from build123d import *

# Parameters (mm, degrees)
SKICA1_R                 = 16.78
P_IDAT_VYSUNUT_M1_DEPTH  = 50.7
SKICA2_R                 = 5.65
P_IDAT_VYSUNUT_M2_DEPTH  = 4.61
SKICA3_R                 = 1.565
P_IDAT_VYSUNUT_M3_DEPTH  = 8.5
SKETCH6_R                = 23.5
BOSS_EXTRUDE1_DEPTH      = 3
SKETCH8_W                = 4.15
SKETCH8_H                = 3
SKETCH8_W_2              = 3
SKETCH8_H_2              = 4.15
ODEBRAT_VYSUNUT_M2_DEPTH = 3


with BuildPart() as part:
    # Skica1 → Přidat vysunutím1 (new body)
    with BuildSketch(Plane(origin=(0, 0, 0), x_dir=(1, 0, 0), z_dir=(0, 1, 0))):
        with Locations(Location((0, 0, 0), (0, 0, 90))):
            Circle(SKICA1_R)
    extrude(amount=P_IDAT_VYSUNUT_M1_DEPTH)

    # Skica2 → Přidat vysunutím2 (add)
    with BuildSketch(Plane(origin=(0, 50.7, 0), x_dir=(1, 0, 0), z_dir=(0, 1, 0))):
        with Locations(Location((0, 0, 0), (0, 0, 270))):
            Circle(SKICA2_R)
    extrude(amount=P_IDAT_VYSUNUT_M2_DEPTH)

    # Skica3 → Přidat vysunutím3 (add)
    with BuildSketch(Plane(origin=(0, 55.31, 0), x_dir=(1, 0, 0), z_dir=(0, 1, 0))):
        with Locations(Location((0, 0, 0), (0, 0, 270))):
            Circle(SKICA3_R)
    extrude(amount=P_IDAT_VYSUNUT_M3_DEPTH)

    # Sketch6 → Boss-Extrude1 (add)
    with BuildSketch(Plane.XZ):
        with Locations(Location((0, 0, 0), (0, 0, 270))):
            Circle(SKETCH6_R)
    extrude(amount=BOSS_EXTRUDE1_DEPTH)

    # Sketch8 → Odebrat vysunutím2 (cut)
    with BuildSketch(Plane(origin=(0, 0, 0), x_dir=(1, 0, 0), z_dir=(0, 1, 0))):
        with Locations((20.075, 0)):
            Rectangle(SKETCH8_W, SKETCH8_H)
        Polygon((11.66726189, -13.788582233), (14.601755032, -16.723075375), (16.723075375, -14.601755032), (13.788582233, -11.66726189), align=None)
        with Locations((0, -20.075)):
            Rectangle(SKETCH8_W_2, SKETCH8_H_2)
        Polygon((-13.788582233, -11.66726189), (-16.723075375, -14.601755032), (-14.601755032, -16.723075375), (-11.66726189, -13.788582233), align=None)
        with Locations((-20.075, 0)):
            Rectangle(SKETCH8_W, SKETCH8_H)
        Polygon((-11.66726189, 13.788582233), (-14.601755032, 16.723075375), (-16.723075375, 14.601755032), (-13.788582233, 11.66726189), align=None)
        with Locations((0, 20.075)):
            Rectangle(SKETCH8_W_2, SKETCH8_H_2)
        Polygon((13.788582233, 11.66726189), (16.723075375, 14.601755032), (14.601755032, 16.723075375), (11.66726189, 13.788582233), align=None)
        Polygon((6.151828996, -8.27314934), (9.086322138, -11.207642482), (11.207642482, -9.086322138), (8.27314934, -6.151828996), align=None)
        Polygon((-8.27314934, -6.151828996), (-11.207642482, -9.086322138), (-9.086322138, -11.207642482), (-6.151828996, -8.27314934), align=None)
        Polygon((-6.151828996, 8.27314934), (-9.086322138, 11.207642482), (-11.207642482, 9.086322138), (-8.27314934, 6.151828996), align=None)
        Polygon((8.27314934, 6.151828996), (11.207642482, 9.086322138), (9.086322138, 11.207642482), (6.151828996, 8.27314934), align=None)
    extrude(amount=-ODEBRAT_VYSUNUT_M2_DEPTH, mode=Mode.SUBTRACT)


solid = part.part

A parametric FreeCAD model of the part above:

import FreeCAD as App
import Part
import Sketcher

V = App.Vector
Q = App.Units.Quantity


def add_polygon(sketch, points):
    """Adds a closed chain of lines whose ends are joined by coincident constraints."""
    first, n = sketch.GeometryCount, len(points)
    for a, b in zip(points, points[1:] + points[:1]):
        sketch.addGeometry(Part.LineSegment(App.Vector(*a, 0), App.Vector(*b, 0)), False)
    for i in range(n):
        sketch.addConstraint(Sketcher.Constraint("Coincident", first + i, 2, first + (i + 1) % n, 1))

doc = App.newDocument("Part")
body = doc.addObject("PartDesign::Body", "Body")

# Sketch on XZ plane
sketch1 = body.newObject("Sketcher::SketchObject", "Sketch")
sketch1.AttachmentSupport = (doc.getObject("XZ_Plane"), [""])
sketch1.MapMode = "FlatFace"
sketch1.addGeometry(Part.Circle(V(0, 0, 0), V(0, 0, 1), 17), False)
sketch1.addConstraint([
    Sketcher.Constraint("Coincident", 0, 3, -1, 1),
    Sketcher.Constraint("Diameter", 0, Q("33.56 mm")),
])
pad1 = body.newObject("PartDesign::Pad", "Pad")
pad1.Profile = sketch1
pad1.Length = 50.7
pad1.Reversed = True

# Sketch on XZ plane
sketch2 = body.newObject("Sketcher::SketchObject", "Sketch001")
sketch2.AttachmentSupport = (doc.getObject("XZ_Plane"), [""])
sketch2.MapMode = "FlatFace"
sketch2.AttachmentOffset = App.Placement(V(0, 0, -50.7), App.Rotation())
sketch2.addGeometry(Part.Circle(V(0, 0, 0), V(0, 0, 1), 6), False)
sketch2.addConstraint([
    Sketcher.Constraint("Coincident", 0, 3, -1, 1),
    Sketcher.Constraint("Diameter", 0, Q("11.3 mm")),
])
pad2 = body.newObject("PartDesign::Pad", "Pad001")
pad2.Profile = sketch2
pad2.Length = 4.61
pad2.Reversed = True

# Sketch on XZ plane
sketch3 = body.newObject("Sketcher::SketchObject", "Sketch002")
sketch3.AttachmentSupport = (doc.getObject("XZ_Plane"), [""])
sketch3.MapMode = "FlatFace"
sketch3.AttachmentOffset = App.Placement(V(0, 0, -55.31), App.Rotation())
sketch3.addGeometry(Part.Circle(V(0, 0, 0), V(0, 0, 1), 1.6), False)
sketch3.addConstraint([
    Sketcher.Constraint("Coincident", 0, 3, -1, 1),
    Sketcher.Constraint("Diameter", 0, Q("3.13 mm")),
])
pad3 = body.newObject("PartDesign::Pad", "Pad002")
pad3.Profile = sketch3
pad3.Length = 8.5
pad3.Reversed = True

# Sketch on XZ plane
sketch4 = body.newObject("Sketcher::SketchObject", "Sketch003")
sketch4.AttachmentSupport = (doc.getObject("XZ_Plane"), [""])
sketch4.MapMode = "FlatFace"
sketch4.addGeometry(Part.Circle(V(0, 0, 0), V(0, 0, 1), 24), False)
sketch4.addConstraint([
    Sketcher.Constraint("Coincident", 0, 3, -1, 1),
    Sketcher.Constraint("Diameter", 0, Q("47 mm")),
])
pad4 = body.newObject("PartDesign::Pad", "Pad003")
pad4.Profile = sketch4
pad4.Length = 3

# Sketch on XZ plane
sketch5 = body.newObject("Sketcher::SketchObject", "Sketch004")
sketch5.AttachmentSupport = (doc.getObject("XZ_Plane"), [""])
sketch5.MapMode = "FlatFace"
add_polygon(sketch5, [(18, -1.5), (18, 1.5), (22.1, 1.5), (22.1, -1.5)])  # lines 0-3
add_polygon(sketch5, [(11.7, 13.8), (14.6, 16.7), (16.7, 14.6), (13.8, 11.7)])  # lines 4-7
add_polygon(sketch5, [(-1.5, 18), (-1.5, 22.1), (1.5, 22.1), (1.5, 18)])  # lines 8-11
add_polygon(sketch5, [(-13.8, 11.7), (-16.7, 14.6), (-14.6, 16.7), (-11.7, 13.8)])  # lines 12-15
add_polygon(sketch5, [(-22.1, -1.5), (-22.1, 1.5), (-18, 1.5), (-18, -1.5)])  # lines 16-19
add_polygon(sketch5, [(-11.7, -13.8), (-14.6, -16.7), (-16.7, -14.6), (-13.8, -11.7)])  # lines 20-23
add_polygon(sketch5, [(-1.5, -22.1), (-1.5, -18), (1.5, -18), (1.5, -22.1)])  # lines 24-27
add_polygon(sketch5, [(13.8, -11.7), (16.7, -14.6), (14.6, -16.7), (11.7, -13.8)])  # lines 28-31
add_polygon(sketch5, [(6.2, 8.3), (9.1, 11.2), (11.2, 9.1), (8.3, 6.2)])  # lines 32-35
add_polygon(sketch5, [(-8.3, 6.2), (-11.2, 9.1), (-9.1, 11.2), (-6.2, 8.3)])  # lines 36-39
add_polygon(sketch5, [(-6.2, -8.3), (-9.1, -11.2), (-11.2, -9.1), (-8.3, -6.2)])  # lines 40-43
add_polygon(sketch5, [(8.3, -6.2), (11.2, -9.1), (9.1, -11.2), (6.2, -8.3)])  # lines 44-47
sketch5.addConstraint([
    Sketcher.Constraint("Vertical", 0),
    Sketcher.Constraint("Horizontal", 1),
    Sketcher.Constraint("Vertical", 2),
    Sketcher.Constraint("Horizontal", 3),
    Sketcher.Constraint("Vertical", 8),
    Sketcher.Constraint("Horizontal", 9),
    Sketcher.Constraint("Vertical", 10),
    Sketcher.Constraint("Horizontal", 11),
    Sketcher.Constraint("Vertical", 16),
    Sketcher.Constraint("Horizontal", 17),
    Sketcher.Constraint("Vertical", 18),
    Sketcher.Constraint("Horizontal", 19),
    Sketcher.Constraint("Vertical", 24),
    Sketcher.Constraint("Horizontal", 25),
    Sketcher.Constraint("Vertical", 26),
    Sketcher.Constraint("Horizontal", 27),
    Sketcher.Constraint("Symmetric", 2, 2, 16, 2, -1, 1),
    Sketcher.Constraint("Symmetric", 0, 2, 18, 2, -1, 1),
    Sketcher.Constraint("Symmetric", 4, 2, 20, 2, -1, 1),
    Sketcher.Constraint("Symmetric", 5, 2, 21, 2, -1, 1),
    Sketcher.Constraint("Symmetric", 6, 2, 22, 2, -1, 1),
    Sketcher.Constraint("Symmetric", 7, 2, 23, 2, -1, 1),
    Sketcher.Constraint("Symmetric", 10, 2, 24, 2, -1, 1),
    Sketcher.Constraint("Symmetric", 8, 2, 26, 2, -1, 1),
    Sketcher.Constraint("Symmetric", 12, 2, 28, 2, -1, 1),
    Sketcher.Constraint("Symmetric", 13, 2, 29, 2, -1, 1),
    Sketcher.Constraint("Symmetric", 14, 2, 30, 2, -1, 1),
    Sketcher.Constraint("Symmetric", 15, 2, 31, 2, -1, 1),
    Sketcher.Constraint("Symmetric", 32, 2, 40, 2, -1, 1),
    Sketcher.Constraint("Symmetric", 33, 2, 41, 2, -1, 1),
    Sketcher.Constraint("Symmetric", 34, 2, 42, 2, -1, 1),
    Sketcher.Constraint("Symmetric", 35, 2, 43, 2, -1, 1),
    Sketcher.Constraint("Symmetric", 36, 2, 44, 2, -1, 1),
    Sketcher.Constraint("Symmetric", 37, 2, 45, 2, -1, 1),
    Sketcher.Constraint("Symmetric", 38, 2, 46, 2, -1, 1),
    Sketcher.Constraint("Symmetric", 39, 2, 47, 2, -1, 1),
    Sketcher.Constraint("Symmetric", 5, 2, 12, 2, -2),
    Sketcher.Constraint("Symmetric", 4, 2, 13, 2, -2),
    Sketcher.Constraint("Symmetric", 7, 2, 14, 2, -2),
    Sketcher.Constraint("Symmetric", 6, 2, 15, 2, -2),
    Sketcher.Constraint("Symmetric", 33, 2, 36, 2, -2),
    Sketcher.Constraint("Symmetric", 32, 2, 37, 2, -2),
    Sketcher.Constraint("Symmetric", 35, 2, 38, 2, -2),
    Sketcher.Constraint("Symmetric", 34, 2, 39, 2, -2),
    Sketcher.Constraint("Perpendicular", 4, 5),
    Sketcher.Constraint("Perpendicular", 5, 6),
    Sketcher.Constraint("Perpendicular", 6, 7),
    Sketcher.Constraint("Parallel", 7, 12),
    Sketcher.Constraint("Parallel", 31, 32),
    Sketcher.Constraint("Perpendicular", 32, 33),
    Sketcher.Constraint("Perpendicular", 33, 34),
    Sketcher.Constraint("Perpendicular", 34, 35),
    Sketcher.Constraint("Horizontal", 1, 2, 16, 2),
    Sketcher.Constraint("Vertical", 11, 2, 24, 2),
    Sketcher.Constraint("Equal", 27, 0),
    Sketcher.Constraint("Equal", 19, 8),
    Sketcher.Constraint("Equal", 30, 32),
    Sketcher.Constraint("Equal", 31, 33),
    Sketcher.Constraint("DistanceX", 9, 1, 9, 2, Q("3 mm")),
    Sketcher.Constraint("Distance", 5, Q("3 mm")),
    Sketcher.Constraint("DistanceX", -1, 1, 0, 2, Q("18 mm")),
    Sketcher.Constraint("DistanceY", -1, 1, 10, 2, Q("18 mm")),
    Sketcher.Constraint("DistanceX", 1, 1, 1, 2, Q("4.15 mm")),
    Sketcher.Constraint("Distance", 4, Q("4.15 mm")),
    Sketcher.Constraint("DistanceY", -1, 1, 6, 2, Q("11.667262 mm")),
    Sketcher.Constraint("DistanceX", -1, 1, 7, 2, Q("11.667262 mm")),
    Sketcher.Constraint("DistanceX", -1, 1, 34, 2, Q("8.273149 mm")),
    Sketcher.Constraint("DistanceY", -1, 1, 34, 2, Q("6.151829 mm")),
])
pocket1 = body.newObject("PartDesign::Pocket", "Pocket")
pocket1.Profile = sketch5
pocket1.Length = 3
pocket1.Reversed = True

doc.recompute()
